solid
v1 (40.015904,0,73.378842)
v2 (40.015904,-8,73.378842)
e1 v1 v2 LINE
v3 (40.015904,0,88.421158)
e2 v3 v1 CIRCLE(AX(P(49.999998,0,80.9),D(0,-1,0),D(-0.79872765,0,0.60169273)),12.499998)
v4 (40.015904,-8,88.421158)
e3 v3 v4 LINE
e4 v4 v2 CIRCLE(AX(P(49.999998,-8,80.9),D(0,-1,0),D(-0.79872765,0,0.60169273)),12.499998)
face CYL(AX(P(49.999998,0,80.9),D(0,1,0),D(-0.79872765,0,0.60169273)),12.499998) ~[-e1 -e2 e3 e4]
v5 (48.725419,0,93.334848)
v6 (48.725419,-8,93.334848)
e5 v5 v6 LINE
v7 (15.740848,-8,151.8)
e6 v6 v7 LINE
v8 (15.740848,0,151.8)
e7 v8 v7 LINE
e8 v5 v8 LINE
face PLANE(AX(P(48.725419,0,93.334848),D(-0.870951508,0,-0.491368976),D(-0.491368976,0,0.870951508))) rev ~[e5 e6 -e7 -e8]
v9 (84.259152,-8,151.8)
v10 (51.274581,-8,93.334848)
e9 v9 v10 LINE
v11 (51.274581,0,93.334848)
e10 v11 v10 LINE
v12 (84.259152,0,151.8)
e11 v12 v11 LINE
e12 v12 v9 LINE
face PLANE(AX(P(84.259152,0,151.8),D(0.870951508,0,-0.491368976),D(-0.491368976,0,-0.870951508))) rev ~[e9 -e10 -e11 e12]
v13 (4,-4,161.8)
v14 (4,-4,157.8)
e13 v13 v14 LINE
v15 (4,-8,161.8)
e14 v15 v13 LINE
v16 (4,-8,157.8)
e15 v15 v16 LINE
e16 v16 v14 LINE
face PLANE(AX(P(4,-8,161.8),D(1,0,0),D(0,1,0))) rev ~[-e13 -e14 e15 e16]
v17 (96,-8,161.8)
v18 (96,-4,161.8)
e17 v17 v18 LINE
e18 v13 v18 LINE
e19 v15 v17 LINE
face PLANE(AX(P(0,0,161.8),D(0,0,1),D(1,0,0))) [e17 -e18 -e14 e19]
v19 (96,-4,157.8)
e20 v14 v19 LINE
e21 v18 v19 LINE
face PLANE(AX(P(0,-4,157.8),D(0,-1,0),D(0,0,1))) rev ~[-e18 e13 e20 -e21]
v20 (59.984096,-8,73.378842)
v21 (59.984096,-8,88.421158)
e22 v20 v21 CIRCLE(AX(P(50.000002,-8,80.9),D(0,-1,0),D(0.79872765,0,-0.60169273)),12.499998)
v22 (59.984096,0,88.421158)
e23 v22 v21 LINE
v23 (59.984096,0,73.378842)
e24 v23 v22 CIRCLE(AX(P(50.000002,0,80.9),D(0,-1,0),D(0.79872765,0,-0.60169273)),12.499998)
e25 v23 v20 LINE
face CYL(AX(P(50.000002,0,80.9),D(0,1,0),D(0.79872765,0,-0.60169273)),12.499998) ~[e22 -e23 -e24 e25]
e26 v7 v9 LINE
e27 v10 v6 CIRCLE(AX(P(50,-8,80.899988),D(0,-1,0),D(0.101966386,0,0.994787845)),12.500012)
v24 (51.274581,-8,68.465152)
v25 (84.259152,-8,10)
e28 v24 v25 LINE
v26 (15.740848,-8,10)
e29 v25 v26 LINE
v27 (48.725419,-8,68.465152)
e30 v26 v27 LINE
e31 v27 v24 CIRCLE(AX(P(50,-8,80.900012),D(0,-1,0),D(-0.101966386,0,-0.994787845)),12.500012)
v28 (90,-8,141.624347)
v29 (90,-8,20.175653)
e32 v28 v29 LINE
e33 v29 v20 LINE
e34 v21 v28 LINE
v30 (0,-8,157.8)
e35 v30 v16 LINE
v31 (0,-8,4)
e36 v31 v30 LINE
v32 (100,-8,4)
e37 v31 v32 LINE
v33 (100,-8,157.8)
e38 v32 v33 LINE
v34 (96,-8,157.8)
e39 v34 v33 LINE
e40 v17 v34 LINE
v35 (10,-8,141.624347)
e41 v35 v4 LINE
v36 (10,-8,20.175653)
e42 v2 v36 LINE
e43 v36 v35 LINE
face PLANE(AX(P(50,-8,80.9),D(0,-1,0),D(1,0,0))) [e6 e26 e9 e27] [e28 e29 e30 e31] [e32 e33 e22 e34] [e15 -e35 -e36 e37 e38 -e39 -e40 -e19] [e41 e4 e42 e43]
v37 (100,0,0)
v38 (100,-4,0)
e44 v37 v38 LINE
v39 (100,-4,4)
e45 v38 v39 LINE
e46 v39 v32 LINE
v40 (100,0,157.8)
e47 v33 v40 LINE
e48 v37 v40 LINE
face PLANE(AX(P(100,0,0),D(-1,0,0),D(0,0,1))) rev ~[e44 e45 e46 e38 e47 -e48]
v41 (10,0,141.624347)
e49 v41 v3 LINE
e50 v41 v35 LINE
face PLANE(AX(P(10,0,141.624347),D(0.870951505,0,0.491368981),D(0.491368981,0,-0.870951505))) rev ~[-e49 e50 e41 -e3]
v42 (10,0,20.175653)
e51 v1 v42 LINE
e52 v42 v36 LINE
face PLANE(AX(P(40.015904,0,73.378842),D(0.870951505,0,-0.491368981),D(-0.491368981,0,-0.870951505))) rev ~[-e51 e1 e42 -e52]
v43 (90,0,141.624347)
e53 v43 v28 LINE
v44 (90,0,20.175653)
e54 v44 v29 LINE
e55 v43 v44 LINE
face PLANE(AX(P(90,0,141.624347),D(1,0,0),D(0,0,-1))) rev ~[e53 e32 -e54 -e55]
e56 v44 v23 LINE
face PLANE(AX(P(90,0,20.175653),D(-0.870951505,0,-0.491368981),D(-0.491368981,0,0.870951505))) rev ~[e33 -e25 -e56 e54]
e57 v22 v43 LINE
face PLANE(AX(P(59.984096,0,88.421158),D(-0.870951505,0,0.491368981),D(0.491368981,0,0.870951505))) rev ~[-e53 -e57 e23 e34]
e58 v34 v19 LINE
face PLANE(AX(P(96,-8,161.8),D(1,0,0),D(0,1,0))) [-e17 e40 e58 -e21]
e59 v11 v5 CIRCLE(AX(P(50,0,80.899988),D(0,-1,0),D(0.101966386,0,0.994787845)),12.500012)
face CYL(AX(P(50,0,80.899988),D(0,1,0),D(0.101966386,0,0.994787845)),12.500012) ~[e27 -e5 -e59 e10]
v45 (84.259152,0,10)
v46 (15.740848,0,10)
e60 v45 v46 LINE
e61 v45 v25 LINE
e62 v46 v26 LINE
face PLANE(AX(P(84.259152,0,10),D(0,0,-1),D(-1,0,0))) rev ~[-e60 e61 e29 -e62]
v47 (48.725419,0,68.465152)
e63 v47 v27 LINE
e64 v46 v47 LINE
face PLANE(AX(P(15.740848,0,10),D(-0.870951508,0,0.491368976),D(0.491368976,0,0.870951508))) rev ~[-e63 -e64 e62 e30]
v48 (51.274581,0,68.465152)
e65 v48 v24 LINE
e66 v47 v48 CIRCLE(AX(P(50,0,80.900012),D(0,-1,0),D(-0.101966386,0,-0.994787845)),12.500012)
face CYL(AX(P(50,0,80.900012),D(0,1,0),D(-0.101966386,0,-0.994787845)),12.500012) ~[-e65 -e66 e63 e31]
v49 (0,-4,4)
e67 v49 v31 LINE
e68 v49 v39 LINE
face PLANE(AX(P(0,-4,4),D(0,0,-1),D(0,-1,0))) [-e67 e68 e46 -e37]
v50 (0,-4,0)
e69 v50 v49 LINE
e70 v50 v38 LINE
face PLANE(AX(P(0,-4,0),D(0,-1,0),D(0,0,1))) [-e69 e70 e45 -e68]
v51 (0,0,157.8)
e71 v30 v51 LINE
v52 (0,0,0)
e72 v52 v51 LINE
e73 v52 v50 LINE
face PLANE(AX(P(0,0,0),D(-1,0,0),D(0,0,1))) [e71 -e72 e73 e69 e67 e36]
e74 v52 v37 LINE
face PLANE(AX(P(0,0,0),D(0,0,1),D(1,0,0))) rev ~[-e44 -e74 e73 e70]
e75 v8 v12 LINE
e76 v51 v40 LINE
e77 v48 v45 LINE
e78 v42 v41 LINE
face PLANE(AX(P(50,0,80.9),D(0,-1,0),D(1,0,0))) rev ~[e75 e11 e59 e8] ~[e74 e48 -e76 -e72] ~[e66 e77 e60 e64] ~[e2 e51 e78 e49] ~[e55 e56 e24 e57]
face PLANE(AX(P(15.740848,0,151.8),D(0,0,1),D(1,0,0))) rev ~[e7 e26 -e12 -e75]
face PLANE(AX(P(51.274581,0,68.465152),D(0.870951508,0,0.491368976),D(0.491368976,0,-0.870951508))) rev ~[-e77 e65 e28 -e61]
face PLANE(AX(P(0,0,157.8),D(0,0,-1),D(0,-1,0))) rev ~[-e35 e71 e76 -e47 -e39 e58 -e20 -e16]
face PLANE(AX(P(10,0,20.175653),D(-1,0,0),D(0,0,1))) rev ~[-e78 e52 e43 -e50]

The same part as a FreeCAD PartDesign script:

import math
import FreeCAD as App
import Part
import Sketcher
Q = App.Units.Quantity


def add_polygon(sketch, points):
    """Adds a closed chain of lines whose ends are joined by coincident constraints."""
    first, n = sketch.GeometryCount, len(points)
    for a, b in zip(points, points[1:] + points[:1]):
        sketch.addGeometry(Part.LineSegment(App.Vector(*a, 0), App.Vector(*b, 0)), False)
    for i in range(n):
        sketch.addConstraint(Sketcher.Constraint("Coincident", first + i, 2, first + (i + 1) % n, 1))

doc = App.newDocument("Part")
body = doc.addObject("PartDesign::Body", "Body")

# Sketch on XZ plane
sketch1 = doc.addObject("Sketcher::SketchObject", "Sketch")
body.addObject(sketch1)
sketch1.AttachmentSupport = (doc.XZ_Plane, [""])
sketch1.MapMode = "FlatFace"
add_polygon(sketch1, [(0, 161.8), (0, 0), (100, 0), (100, 161.8)])  # lines 0-3
sketch1.addGeometry(Part.ArcOfCircle(Part.Circle(App.Vector(50, 80.9, 0), App.Vector(0, 0, 1), 12.5), math.radians(143), math.radians(217)), False)  # 4
sketch1.addGeometry(Part.LineSegment(App.Vector(40, 73.4, 0), App.Vector(10, 20.2, 0)), False)  # 5
sketch1.addGeometry(Part.LineSegment(App.Vector(10, 20.2, 0), App.Vector(10, 141.6, 0)), False)  # 6
sketch1.addGeometry(Part.LineSegment(App.Vector(10, 141.6, 0), App.Vector(40, 88.4, 0)), False)  # 7
sketch1.addGeometry(Part.LineSegment(App.Vector(51.3, 68.5, 0), App.Vector(84.3, 10, 0)), False)  # 8
sketch1.addGeometry(Part.LineSegment(App.Vector(84.3, 10, 0), App.Vector(15.7, 10, 0)), False)  # 9
sketch1.addGeometry(Part.LineSegment(App.Vector(15.7, 10, 0), App.Vector(48.7, 68.5, 0)), False)  # 10
sketch1.addGeometry(Part.ArcOfCircle(Part.Circle(App.Vector(50, 80.9, 0), App.Vector(0, 0, 1), 12.5), math.radians(-95.85), math.radians(-84.15)), False)  # 11
sketch1.addGeometry(Part.LineSegment(App.Vector(60, 88.4, 0), App.Vector(90, 141.6, 0)), False)  # 12
sketch1.addGeometry(Part.LineSegment(App.Vector(90, 141.6, 0), App.Vector(90, 20.2, 0)), False)  # 13
sketch1.addGeometry(Part.LineSegment(App.Vector(90, 20.2, 0), App.Vector(60, 73.4, 0)), False)  # 14
sketch1.addGeometry(Part.ArcOfCircle(Part.Circle(App.Vector(50, 80.9, 0), App.Vector(0, 0, 1), 12.5), math.radians(-37), math.radians(37)), False)  # 15
sketch1.addGeometry(Part.LineSegment(App.Vector(48.7, 93.3, 0), App.Vector(15.7, 151.8, 0)), False)  # 16
sketch1.addGeometry(Part.LineSegment(App.Vector(15.7, 151.8, 0), App.Vector(84.3, 151.8, 0)), False)  # 17
sketch1.addGeometry(Part.LineSegment(App.Vector(84.3, 151.8, 0), App.Vector(51.3, 93.3, 0)), False)  # 18
sketch1.addGeometry(Part.ArcOfCircle(Part.Circle(App.Vector(50, 80.9, 0), App.Vector(0, 0, 1), 12.5), math.radians(84.15), math.radians(95.85)), False)  # 19
sketch1.addConstraint([
    Sketcher.Constraint("Coincident", 4, 2, 5, 1),
    Sketcher.Constraint("Coincident", 5, 2, 6, 1),
    Sketcher.Constraint("Coincident", 6, 2, 7, 1),
    Sketcher.Constraint("Coincident", 7, 2, 4, 1),
    Sketcher.Constraint("Coincident", 8, 2, 9, 1),
    Sketcher.Constraint("Coincident", 9, 2, 10, 1),
    Sketcher.Constraint("Coincident", 10, 2, 11, 1),
    Sketcher.Constraint("Coincident", 11, 2, 8, 1),
    Sketcher.Constraint("Coincident", 12, 2, 13, 1),
    Sketcher.Constraint("Coincident", 13, 2, 14, 1),
    Sketcher.Constraint("Coincident", 14, 2, 15, 1),
    Sketcher.Constraint("Coincident", 15, 2, 12, 1),
    Sketcher.Constraint("Coincident", 16, 2, 17, 1),
    Sketcher.Constraint("Coincident", 17, 2, 18, 1),
    Sketcher.Constraint("Coincident", 18, 2, 19, 1),
    Sketcher.Constraint("Coincident", 19, 2, 16, 1),
    Sketcher.Constraint("Vertical", 0),
    Sketcher.Constraint("Horizontal", 1),
    Sketcher.Constraint("Vertical", 2),
    Sketcher.Constraint("Horizontal", 3),
    Sketcher.Constraint("Vertical", 6),
    Sketcher.Constraint("Horizontal", 9),
    Sketcher.Constraint("Vertical", 13),
    Sketcher.Constraint("Horizontal", 17),
    Sketcher.Constraint("Coincident", 0, 2, -1, 1),
    Sketcher.Constraint("Coincident", 15, 3, 4, 3),
    Sketcher.Constraint("Equal", 4, 15),
    Sketcher.Constraint("Equal", 11, 19),
    Sketcher.Constraint("Parallel", 7, 8),
    Sketcher.Constraint("Parallel", 5, 10),
    Sketcher.Constraint("Parallel", 10, 12),
    Sketcher.Constraint("Parallel", 8, 14),
    Sketcher.Constraint("Parallel", 14, 16),
    Sketcher.Constraint("Parallel", 12, 18),
    Sketcher.Constraint("Horizontal", 10, 2, 11, 2),
    Sketcher.Constraint("Horizontal", 6, 2, 12, 2),
    Sketcher.Constraint("Horizontal", 5, 2, 13, 2),
    Sketcher.Constraint("Horizontal", 4, 2, 14, 2),
    Sketcher.Constraint("Horizontal", 7, 2, 15, 2),
    Sketcher.Constraint("Horizontal", 18, 2, 19, 2),
    Sketcher.Constraint("Vertical", 4, 3, 11, 3),
    Sketcher.Constraint("Vertical", 15, 3, 19, 3),
    Sketcher.Constraint("Vertical", 4, 2, 7, 2),
    Sketcher.Constraint("Vertical", 9, 2, 16, 2),
    Sketcher.Constraint("Vertical", 11, 2, 18, 2),
    Sketcher.Constraint("Radius", 4, Q("12.499998 mm")),
    Sketcher.Constraint("DistanceX", 1, 1, 1, 2, Q("100 mm")),
    Sketcher.Constraint("DistanceY", 0, 2, 0, 1, Q("161.8 mm")),
    Sketcher.Constraint("DistanceX", -1, 1, 4, 3, Q("49.999998 mm")),
    Sketcher.Constraint("DistanceX", -1, 1, 5, 2, Q("10 mm")),
    Sketcher.Constraint("DistanceY", -1, 1, 8, 2, Q("10 mm")),
    Sketcher.Constraint("DistanceY", 16, 2, 3, 2, Q("10 mm")),
    Sketcher.Constraint("DistanceY", -1, 1, 4, 3, Q("80.9 mm")),
    Sketcher.Constraint("Radius", 11, Q("12.500012 mm")),
    Sketcher.Constraint("DistanceY", 13, 2, 11, 2, Q("48.289499 mm")),
    Sketcher.Constraint("Distance", 5, Q("61.086282 mm")),
    Sketcher.Constraint("DistanceX", 9, 2, 9, 1, Q("68.518304 mm")),
    Sketcher.Constraint("DistanceY", 6, 1, 6, 2, Q("121.448694 mm")),
])
pad1 = doc.addObject("PartDesign::Pad", "Pad")
body.addObject(pad1)
pad1.Profile = sketch1
pad1.Length = 8

# Sketch on YZ plane
sketch2 = doc.addObject("Sketcher::SketchObject", "Sketch001")
body.addObject(sketch2)
sketch2.AttachmentSupport = (doc.YZ_Plane, [""])
sketch2.MapMode = "FlatFace"
add_polygon(sketch2, [(0, 161.8), (0, 157.8), (-4, 157.8), (-4, 161.8)])  # lines 0-3
add_polygon(sketch2, [(-4, 4), (-4, 0), (-8, 0), (-8, 4)])  # lines 4-7
sketch2.addConstraint([
    Sketcher.Constraint("Vertical", 0),
    Sketcher.Constraint("Horizontal", 1),
    Sketcher.Constraint("Vertical", 2),
    Sketcher.Constraint("Horizontal", 3),
    Sketcher.Constraint("Vertical", 4),
    Sketcher.Constraint("Horizontal", 5),
    Sketcher.Constraint("Vertical", 6),
    Sketcher.Constraint("Horizontal", 7),
    Sketcher.Constraint("PointOnObject", 0, 2, -2),
    Sketcher.Constraint("PointOnObject", 4, 2, -1),
    Sketcher.Constraint("Vertical", 2, 2, 4, 2),
    Sketcher.Constraint("Equal", 3, 5),
    Sketcher.Constraint("Equal", 7, 0),
    Sketcher.Constraint("Equal", 2, 4),
    Sketcher.Constraint("DistanceX", 1, 2, 1, 1, Q("4 mm")),
    Sketcher.Constraint("DistanceY", -1, 1, 0, 2, Q("157.8 mm")),
])
pocket1 = doc.addObject("PartDesign::Pocket", "Pocket")
body.addObject(pocket1)
pocket1.Profile = sketch2
pocket1.Length = 134.44841
pocket1.Reversed = True

# Sketch on XY plane
sketch3 = doc.addObject("Sketcher::SketchObject", "Sketch002")
body.addObject(sketch3)
sketch3.AttachmentSupport = (doc.XY_Plane, [""])
sketch3.MapMode = "FlatFace"
sketch3.AttachmentOffset = App.Placement(App.Vector(0, 0, 161.8), App.Rotation())
add_polygon(sketch3, [(96, -4), (96, -8), (100, -8), (100, -4)])  # lines 0-3
add_polygon(sketch3, [(0, -4), (0, -8), (4, -8), (4, -4)])  # lines 4-7
sketch3.addConstraint([
    Sketcher.Constraint("Vertical", 0),
    Sketcher.Constraint("Horizontal", 1),
    Sketcher.Constraint("Vertical", 2),
    Sketcher.Constraint("Horizontal", 3),
    Sketcher.Constraint("Vertical", 4),
    Sketcher.Constraint("Horizontal", 5),
    Sketcher.Constraint("Vertical", 6),
    Sketcher.Constraint("Horizontal", 7),
    Sketcher.Constraint("PointOnObject", 4, 2, -2),
    Sketcher.Constraint("Horizontal", 1, 2, 4, 2),
    Sketcher.Constraint("Horizontal", 3, 2, 6, 2),
    Sketcher.Constraint("Equal", 3, 5),
    Sketcher.Constraint("Equal", 7, 0),
    Sketcher.Constraint("DistanceX", 1, 1, 1, 2, Q("4 mm")),
    Sketcher.Constraint("DistanceX", -1, 1, 0, 2, Q("96 mm")),
    Sketcher.Constraint("DistanceY", 0, 2, -1, 1, Q("8 mm")),
])
pocket2 = doc.addObject("PartDesign::Pocket", "Pocket001")
body.addObject(pocket2)
pocket2.Profile = sketch3
pocket2.Length = 4

doc.recompute()
